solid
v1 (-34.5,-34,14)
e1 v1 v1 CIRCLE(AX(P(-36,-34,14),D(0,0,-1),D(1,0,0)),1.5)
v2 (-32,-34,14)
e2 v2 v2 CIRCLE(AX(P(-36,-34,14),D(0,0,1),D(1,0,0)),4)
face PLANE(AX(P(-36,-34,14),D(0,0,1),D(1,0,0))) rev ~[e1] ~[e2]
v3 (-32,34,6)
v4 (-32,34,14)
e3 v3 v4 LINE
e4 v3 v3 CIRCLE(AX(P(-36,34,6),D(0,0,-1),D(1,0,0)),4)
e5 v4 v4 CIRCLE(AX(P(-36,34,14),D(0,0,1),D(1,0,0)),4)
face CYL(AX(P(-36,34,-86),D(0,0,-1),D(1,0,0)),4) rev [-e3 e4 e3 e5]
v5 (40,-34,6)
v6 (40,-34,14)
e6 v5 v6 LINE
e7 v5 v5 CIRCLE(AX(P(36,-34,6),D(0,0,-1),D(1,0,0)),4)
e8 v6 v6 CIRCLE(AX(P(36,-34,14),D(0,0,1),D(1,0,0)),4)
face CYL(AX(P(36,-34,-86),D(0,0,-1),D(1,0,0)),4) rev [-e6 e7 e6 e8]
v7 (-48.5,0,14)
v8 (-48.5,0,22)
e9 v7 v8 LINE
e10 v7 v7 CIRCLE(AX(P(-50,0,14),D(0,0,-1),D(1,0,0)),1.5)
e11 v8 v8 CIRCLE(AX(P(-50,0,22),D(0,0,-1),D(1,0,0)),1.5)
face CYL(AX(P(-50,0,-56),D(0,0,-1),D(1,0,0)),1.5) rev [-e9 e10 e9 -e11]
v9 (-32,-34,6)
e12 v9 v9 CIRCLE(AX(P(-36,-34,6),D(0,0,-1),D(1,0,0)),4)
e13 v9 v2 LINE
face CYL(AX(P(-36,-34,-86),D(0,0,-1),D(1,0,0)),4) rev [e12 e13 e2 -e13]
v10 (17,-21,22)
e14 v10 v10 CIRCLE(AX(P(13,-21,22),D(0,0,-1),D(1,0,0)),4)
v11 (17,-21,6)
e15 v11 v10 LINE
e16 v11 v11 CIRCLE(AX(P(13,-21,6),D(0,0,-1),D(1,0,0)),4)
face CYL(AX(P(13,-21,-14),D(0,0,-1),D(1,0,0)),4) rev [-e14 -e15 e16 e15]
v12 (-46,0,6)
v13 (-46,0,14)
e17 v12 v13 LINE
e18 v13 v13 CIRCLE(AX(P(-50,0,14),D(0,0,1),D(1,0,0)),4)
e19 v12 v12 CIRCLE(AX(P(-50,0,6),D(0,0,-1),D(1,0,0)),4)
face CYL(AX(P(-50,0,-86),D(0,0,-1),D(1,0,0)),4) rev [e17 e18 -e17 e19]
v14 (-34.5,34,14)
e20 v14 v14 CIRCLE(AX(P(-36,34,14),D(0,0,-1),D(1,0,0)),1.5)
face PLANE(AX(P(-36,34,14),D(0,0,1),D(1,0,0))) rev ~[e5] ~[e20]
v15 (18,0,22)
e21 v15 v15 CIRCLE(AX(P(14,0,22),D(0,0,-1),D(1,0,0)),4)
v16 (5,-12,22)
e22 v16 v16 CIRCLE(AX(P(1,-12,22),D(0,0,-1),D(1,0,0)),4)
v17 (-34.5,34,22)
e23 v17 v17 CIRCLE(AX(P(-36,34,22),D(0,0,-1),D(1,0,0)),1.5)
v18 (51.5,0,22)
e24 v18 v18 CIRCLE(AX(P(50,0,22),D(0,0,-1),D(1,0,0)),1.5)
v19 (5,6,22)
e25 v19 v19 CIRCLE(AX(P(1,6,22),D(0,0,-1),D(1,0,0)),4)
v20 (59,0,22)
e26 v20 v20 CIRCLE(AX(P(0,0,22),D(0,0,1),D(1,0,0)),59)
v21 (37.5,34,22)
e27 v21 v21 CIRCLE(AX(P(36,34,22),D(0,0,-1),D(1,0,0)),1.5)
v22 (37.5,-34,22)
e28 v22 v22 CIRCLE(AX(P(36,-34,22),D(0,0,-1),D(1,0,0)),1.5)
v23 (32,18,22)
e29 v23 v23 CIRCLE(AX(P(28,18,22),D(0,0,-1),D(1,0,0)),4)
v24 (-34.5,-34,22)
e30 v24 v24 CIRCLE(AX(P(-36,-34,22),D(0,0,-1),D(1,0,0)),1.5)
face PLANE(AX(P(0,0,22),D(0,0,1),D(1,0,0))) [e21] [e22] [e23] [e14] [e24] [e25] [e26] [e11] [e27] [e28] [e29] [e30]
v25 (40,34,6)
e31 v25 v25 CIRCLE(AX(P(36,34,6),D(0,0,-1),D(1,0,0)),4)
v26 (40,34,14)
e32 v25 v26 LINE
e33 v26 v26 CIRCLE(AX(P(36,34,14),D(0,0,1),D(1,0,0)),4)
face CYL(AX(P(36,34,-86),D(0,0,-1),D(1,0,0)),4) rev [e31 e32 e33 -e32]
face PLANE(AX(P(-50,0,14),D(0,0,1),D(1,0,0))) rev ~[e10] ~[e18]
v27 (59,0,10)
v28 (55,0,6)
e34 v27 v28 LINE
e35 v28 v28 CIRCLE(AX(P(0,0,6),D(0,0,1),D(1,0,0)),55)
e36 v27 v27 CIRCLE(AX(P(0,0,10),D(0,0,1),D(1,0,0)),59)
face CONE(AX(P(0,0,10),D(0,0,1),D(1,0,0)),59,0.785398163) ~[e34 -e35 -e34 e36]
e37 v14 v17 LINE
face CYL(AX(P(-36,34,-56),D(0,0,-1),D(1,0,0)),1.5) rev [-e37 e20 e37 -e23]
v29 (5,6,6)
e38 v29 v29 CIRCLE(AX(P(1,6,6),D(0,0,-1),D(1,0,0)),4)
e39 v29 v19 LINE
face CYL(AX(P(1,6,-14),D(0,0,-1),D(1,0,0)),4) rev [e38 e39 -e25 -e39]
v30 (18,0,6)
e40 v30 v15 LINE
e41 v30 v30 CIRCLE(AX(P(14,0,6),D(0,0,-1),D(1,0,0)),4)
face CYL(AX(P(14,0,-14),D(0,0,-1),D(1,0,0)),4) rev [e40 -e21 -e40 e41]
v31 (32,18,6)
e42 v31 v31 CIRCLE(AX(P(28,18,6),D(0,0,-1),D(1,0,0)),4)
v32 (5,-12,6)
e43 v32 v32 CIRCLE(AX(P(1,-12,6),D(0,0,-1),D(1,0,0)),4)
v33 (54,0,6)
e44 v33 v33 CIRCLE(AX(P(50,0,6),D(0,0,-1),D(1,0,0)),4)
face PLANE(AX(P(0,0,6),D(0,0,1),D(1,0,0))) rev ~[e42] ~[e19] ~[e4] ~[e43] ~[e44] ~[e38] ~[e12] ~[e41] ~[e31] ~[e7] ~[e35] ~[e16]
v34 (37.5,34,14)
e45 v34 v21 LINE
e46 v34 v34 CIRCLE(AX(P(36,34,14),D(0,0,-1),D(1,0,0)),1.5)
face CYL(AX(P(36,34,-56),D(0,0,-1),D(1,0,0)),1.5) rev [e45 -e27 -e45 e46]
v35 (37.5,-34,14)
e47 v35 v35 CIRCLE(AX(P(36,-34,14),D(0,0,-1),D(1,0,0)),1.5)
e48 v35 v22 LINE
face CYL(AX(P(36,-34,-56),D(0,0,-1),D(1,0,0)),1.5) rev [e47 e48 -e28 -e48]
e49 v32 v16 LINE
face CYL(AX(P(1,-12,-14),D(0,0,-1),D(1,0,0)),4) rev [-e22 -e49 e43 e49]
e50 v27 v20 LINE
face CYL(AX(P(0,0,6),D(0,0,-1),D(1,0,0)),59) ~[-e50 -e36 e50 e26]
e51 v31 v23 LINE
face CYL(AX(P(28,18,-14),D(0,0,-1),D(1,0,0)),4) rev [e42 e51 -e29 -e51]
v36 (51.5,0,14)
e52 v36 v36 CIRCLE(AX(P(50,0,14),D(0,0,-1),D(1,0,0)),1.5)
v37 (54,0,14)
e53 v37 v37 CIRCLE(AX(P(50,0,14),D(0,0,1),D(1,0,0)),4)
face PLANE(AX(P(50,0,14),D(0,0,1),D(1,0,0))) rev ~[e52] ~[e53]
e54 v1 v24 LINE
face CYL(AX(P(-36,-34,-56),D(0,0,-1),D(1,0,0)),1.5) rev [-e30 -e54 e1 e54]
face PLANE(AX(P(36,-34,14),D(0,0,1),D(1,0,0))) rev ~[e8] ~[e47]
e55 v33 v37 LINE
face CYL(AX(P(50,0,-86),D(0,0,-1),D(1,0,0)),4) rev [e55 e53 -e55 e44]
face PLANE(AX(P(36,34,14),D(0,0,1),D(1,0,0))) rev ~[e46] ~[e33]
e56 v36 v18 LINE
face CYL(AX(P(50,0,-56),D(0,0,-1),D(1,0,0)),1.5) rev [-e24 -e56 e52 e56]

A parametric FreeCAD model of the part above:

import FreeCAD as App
import Part
import Sketcher

V = App.Vector
Q = App.Units.Quantity


def edges_at(feature, points):
    """Names of the edges that pass closest to the given points."""
    edges = feature.Shape.Edges
    near = lambda p: min(range(len(edges)), key=lambda i: edges[i].distToShape(Part.Vertex(*p))[0])
    return sorted({f"Edge{near(p) + 1}" for p in points})

doc = App.newDocument("Part")
body = doc.addObject("PartDesign::Body", "Body")

# Sketch on XY plane
sketch1 = doc.addObject("Sketcher::SketchObject", "Sketch")
body.addObject(sketch1)
sketch1.AttachmentSupport = (doc.XY_Plane, [""])
sketch1.MapMode = "FlatFace"
sketch1.AttachmentOffset = App.Placement(V(0, 0, -18), App.Rotation())
sketch1.addGeometry(Part.Circle(V(14, 0, 0), V(0, 0, 1), 4), False)
sketch1.addConstraint(Sketcher.Constraint("PointOnObject", 0, 3, -1))
sketch1.addConstraint(Sketcher.Constraint("Diameter", 0, Q("8 mm")))
sketch1.addConstraint(Sketcher.Constraint("DistanceX", -1, 1, 0, 3, Q("14 mm")))
pad1 = doc.addObject("PartDesign::Pad", "Pad")
body.addObject(pad1)
pad1.Profile = sketch1
pad1.Length = 100
body2 = doc.addObject("PartDesign::Body", "Body001")
body2.AllowCompound = True

# Sketch on XY plane
sketch2 = doc.addObject("Sketcher::SketchObject", "Sketch001")
body2.addObject(sketch2)
sketch2.AttachmentSupport = (doc.getObject("XY_Plane001"), [""])
sketch2.MapMode = "FlatFace"
sketch2.AttachmentOffset = App.Placement(V(0, 0, -18), App.Rotation())
sketch2.addGeometry(Part.Circle(V(90, 0, 0), V(0, 0, 1), 4), False)
sketch2.addConstraint(Sketcher.Constraint("PointOnObject", 0, 3, -1))
sketch2.addConstraint(Sketcher.Constraint("Diameter", 0, Q("8 mm")))
sketch2.addConstraint(Sketcher.Constraint("DistanceX", -1, 1, 0, 3, Q("90 mm")))
pad2 = doc.addObject("PartDesign::Pad", "Pad001")
body2.addObject(pad2)
pad2.Profile = sketch2
pad2.Length = 100
doc.recompute()

boolean = doc.addObject("PartDesign::Boolean", "Boolean")
body2.addObject(boolean)
boolean.Type = "Fuse"
boolean.addObjects([body])
body3 = doc.addObject("PartDesign::Body", "Body002")

# Sketch on XY plane
sketch3 = doc.addObject("Sketcher::SketchObject", "Sketch002")
body3.addObject(sketch3)
sketch3.AttachmentSupport = (doc.getObject("XY_Plane002"), [""])
sketch3.MapMode = "FlatFace"
sketch3.AttachmentOffset = App.Placement(V(0, 0, -60), App.Rotation())
sketch3.addGeometry(Part.Circle(V(-36, 34, 0), V(0, 0, 1), 1.5), False)
sketch3.addConstraint(Sketcher.Constraint("Diameter", 0, Q("3 mm")))
sketch3.addConstraint(Sketcher.Constraint("DistanceX", 0, 3, -1, 1, Q("36 mm")))
sketch3.addConstraint(Sketcher.Constraint("DistanceY", -1, 1, 0, 3, Q("34 mm")))
pad3 = doc.addObject("PartDesign::Pad", "Pad002")
body3.addObject(pad3)
pad3.Profile = sketch3
pad3.Length = 100
body4 = doc.addObject("PartDesign::Body", "Body003")

# Sketch on XY plane
sketch4 = doc.addObject("Sketcher::SketchObject", "Sketch003")
body4.addObject(sketch4)
sketch4.AttachmentSupport = (doc.getObject("XY_Plane003"), [""])
sketch4.MapMode = "FlatFace"
sketch4.AttachmentOffset = App.Placement(V(0, 0, -60), App.Rotation())
sketch4.addGeometry(Part.Circle(V(-36, -34, 0), V(0, 0, 1), 1.5), False)
sketch4.addConstraint(Sketcher.Constraint("Diameter", 0, Q("3 mm")))
sketch4.addConstraint(Sketcher.Constraint("DistanceX", 0, 3, -1, 1, Q("36 mm")))
sketch4.addConstraint(Sketcher.Constraint("DistanceY", 0, 3, -1, 1, Q("34 mm")))
pad4 = doc.addObject("PartDesign::Pad", "Pad003")
body4.addObject(pad4)
pad4.Profile = sketch4
pad4.Length = 100
body5 = doc.addObject("PartDesign::Body", "Body004")

# Sketch on XY plane
sketch5 = doc.addObject("Sketcher::SketchObject", "Sketch004")
body5.addObject(sketch5)
sketch5.AttachmentSupport = (doc.getObject("XY_Plane004"), [""])
sketch5.MapMode = "FlatFace"
sketch5.AttachmentOffset = App.Placement(V(0, 0, -60), App.Rotation())
sketch5.addGeometry(Part.Circle(V(50, 0, 0), V(0, 0, 1), 1.5), False)
sketch5.addConstraint(Sketcher.Constraint("PointOnObject", 0, 3, -1))
sketch5.addConstraint(Sketcher.Constraint("Diameter", 0, Q("3 mm")))
sketch5.addConstraint(Sketcher.Constraint("DistanceX", -1, 1, 0, 3, Q("50 mm")))
pad5 = doc.addObject("PartDesign::Pad", "Pad004")
body5.addObject(pad5)
pad5.Profile = sketch5
pad5.Length = 100
body6 = doc.addObject("PartDesign::Body", "Body005")

# Sketch on XY plane
sketch6 = doc.addObject("Sketcher::SketchObject", "Sketch005")
body6.addObject(sketch6)
sketch6.AttachmentSupport = (doc.getObject("XY_Plane005"), [""])
sketch6.MapMode = "FlatFace"
sketch6.AttachmentOffset = App.Placement(V(0, 0, -60), App.Rotation())
sketch6.addGeometry(Part.Circle(V(36, 34, 0), V(0, 0, 1), 1.5), False)
sketch6.addConstraint(Sketcher.Constraint("Diameter", 0, Q("3 mm")))
sketch6.addConstraint(Sketcher.Constraint("DistanceX", -1, 1, 0, 3, Q("36 mm")))
sketch6.addConstraint(Sketcher.Constraint("DistanceY", -1, 1, 0, 3, Q("34 mm")))
pad6 = doc.addObject("PartDesign::Pad", "Pad005")
body6.addObject(pad6)
pad6.Profile = sketch6
pad6.Length = 100
body7 = doc.addObject("PartDesign::Body", "Body006")

# Sketch on XY plane
sketch7 = doc.addObject("Sketcher::SketchObject", "Sketch006")
body7.addObject(sketch7)
sketch7.AttachmentSupport = (doc.getObject("XY_Plane006"), [""])
sketch7.MapMode = "FlatFace"
sketch7.AttachmentOffset = App.Placement(V(0, 0, -60), App.Rotation())
sketch7.addGeometry(Part.Circle(V(36, -34, 0), V(0, 0, 1), 1.5), False)
sketch7.addConstraint(Sketcher.Constraint("Diameter", 0, Q("3 mm")))
sketch7.addConstraint(Sketcher.Constraint("DistanceX", -1, 1, 0, 3, Q("36 mm")))
sketch7.addConstraint(Sketcher.Constraint("DistanceY", 0, 3, -1, 1, Q("34 mm")))
pad7 = doc.addObject("PartDesign::Pad", "Pad006")
body7.addObject(pad7)
pad7.Profile = sketch7
pad7.Length = 100
body8 = doc.addObject("PartDesign::Body", "Body007")
body8.AllowCompound = True

# Sketch on XY plane
sketch8 = doc.addObject("Sketcher::SketchObject", "Sketch007")
body8.addObject(sketch8)
sketch8.AttachmentSupport = (doc.getObject("XY_Plane007"), [""])
sketch8.MapMode = "FlatFace"
sketch8.AttachmentOffset = App.Placement(V(0, 0, -60), App.Rotation())
sketch8.addGeometry(Part.Circle(V(-50, 0, 0), V(0, 0, 1), 1.5), False)
sketch8.addConstraint(Sketcher.Constraint("PointOnObject", 0, 3, -1))
sketch8.addConstraint(Sketcher.Constraint("Diameter", 0, Q("3 mm")))
sketch8.addConstraint(Sketcher.Constraint("DistanceX", 0, 3, -1, 1, Q("50 mm")))
pad8 = doc.addObject("PartDesign::Pad", "Pad007")
body8.addObject(pad8)
pad8.Profile = sketch8
pad8.Length = 100
doc.recompute()

boolean2 = doc.addObject("PartDesign::Boolean", "Boolean001")
body8.addObject(boolean2)
boolean2.Type = "Fuse"
boolean2.addObjects([body3])
doc.recompute()

boolean3 = doc.addObject("PartDesign::Boolean", "Boolean002")
body8.addObject(boolean3)
boolean3.Type = "Fuse"
boolean3.addObjects([body4])
doc.recompute()

boolean4 = doc.addObject("PartDesign::Boolean", "Boolean003")
body8.addObject(boolean4)
boolean4.Type = "Fuse"
boolean4.addObjects([body5])
doc.recompute()

boolean5 = doc.addObject("PartDesign::Boolean", "Boolean004")
body8.addObject(boolean5)
boolean5.Type = "Fuse"
boolean5.addObjects([body6])
doc.recompute()

boolean6 = doc.addObject("PartDesign::Boolean", "Boolean005")
body8.addObject(boolean6)
boolean6.Type = "Fuse"
boolean6.addObjects([body7])
body9 = doc.addObject("PartDesign::Body", "Body008")

# Sketch on XY plane
sketch9 = doc.addObject("Sketcher::SketchObject", "Sketch008")
body9.addObject(sketch9)
sketch9.AttachmentSupport = (doc.getObject("XY_Plane008"), [""])
sketch9.MapMode = "FlatFace"
sketch9.AttachmentOffset = App.Placement(V(0, 0, -90), App.Rotation())
sketch9.addGeometry(Part.Circle(V(-36, 34, 0), V(0, 0, 1), 4), False)
sketch9.addConstraint(Sketcher.Constraint("Diameter", 0, Q("8 mm")))
sketch9.addConstraint(Sketcher.Constraint("DistanceX", 0, 3, -1, 1, Q("36 mm")))
sketch9.addConstraint(Sketcher.Constraint("DistanceY", -1, 1, 0, 3, Q("34 mm")))
pad9 = doc.addObject("PartDesign::Pad", "Pad008")
body9.addObject(pad9)
pad9.Profile = sketch9
pad9.Length = 100
body10 = doc.addObject("PartDesign::Body", "Body009")

# Sketch on XY plane
sketch10 = doc.addObject("Sketcher::SketchObject", "Sketch009")
body10.addObject(sketch10)
sketch10.AttachmentSupport = (doc.getObject("XY_Plane009"), [""])
sketch10.MapMode = "FlatFace"
sketch10.AttachmentOffset = App.Placement(V(0, 0, -90), App.Rotation())
sketch10.addGeometry(Part.Circle(V(-36, -34, 0), V(0, 0, 1), 4), False)
sketch10.addConstraint(Sketcher.Constraint("Diameter", 0, Q("8 mm")))
sketch10.addConstraint(Sketcher.Constraint("DistanceX", 0, 3, -1, 1, Q("36 mm")))
sketch10.addConstraint(Sketcher.Constraint("DistanceY", 0, 3, -1, 1, Q("34 mm")))
pad10 = doc.addObject("PartDesign::Pad", "Pad009")
body10.addObject(pad10)
pad10.Profile = sketch10
pad10.Length = 100
body11 = doc.addObject("PartDesign::Body", "Body010")

# Sketch on XY plane
sketch11 = doc.addObject("Sketcher::SketchObject", "Sketch010")
body11.addObject(sketch11)
sketch11.AttachmentSupport = (doc.getObject("XY_Plane010"), [""])
sketch11.MapMode = "FlatFace"
sketch11.AttachmentOffset = App.Placement(V(0, 0, -90), App.Rotation())
sketch11.addGeometry(Part.Circle(V(50, 0, 0), V(0, 0, 1), 4), False)
sketch11.addConstraint(Sketcher.Constraint("PointOnObject", 0, 3, -1))
sketch11.addConstraint(Sketcher.Constraint("Diameter", 0, Q("8 mm")))
sketch11.addConstraint(Sketcher.Constraint("DistanceX", -1, 1, 0, 3, Q("50 mm")))
pad11 = doc.addObject("PartDesign::Pad", "Pad010")
body11.addObject(pad11)
pad11.Profile = sketch11
pad11.Length = 100
body12 = doc.addObject("PartDesign::Body", "Body011")

# Sketch on XY plane
sketch12 = doc.addObject("Sketcher::SketchObject", "Sketch011")
body12.addObject(sketch12)
sketch12.AttachmentSupport = (doc.getObject("XY_Plane011"), [""])
sketch12.MapMode = "FlatFace"
sketch12.AttachmentOffset = App.Placement(V(0, 0, -90), App.Rotation())
sketch12.addGeometry(Part.Circle(V(36, 34, 0), V(0, 0, 1), 4), False)
sketch12.addConstraint(Sketcher.Constraint("Diameter", 0, Q("8 mm")))
sketch12.addConstraint(Sketcher.Constraint("DistanceX", -1, 1, 0, 3, Q("36 mm")))
sketch12.addConstraint(Sketcher.Constraint("DistanceY", -1, 1, 0, 3, Q("34 mm")))
pad12 = doc.addObject("PartDesign::Pad", "Pad011")
body12.addObject(pad12)
pad12.Profile = sketch12
pad12.Length = 100
body13 = doc.addObject("PartDesign::Body", "Body012")

# Sketch on XY plane
sketch13 = doc.addObject("Sketcher::SketchObject", "Sketch012")
body13.addObject(sketch13)
sketch13.AttachmentSupport = (doc.getObject("XY_Plane012"), [""])
sketch13.MapMode = "FlatFace"
sketch13.AttachmentOffset = App.Placement(V(0, 0, -90), App.Rotation())
sketch13.addGeometry(Part.Circle(V(36, -34, 0), V(0, 0, 1), 4), False)
sketch13.addConstraint(Sketcher.Constraint("Diameter", 0, Q("8 mm")))
sketch13.addConstraint(Sketcher.Constraint("DistanceX", -1, 1, 0, 3, Q("36 mm")))
sketch13.addConstraint(Sketcher.Constraint("DistanceY", 0, 3, -1, 1, Q("34 mm")))
pad13 = doc.addObject("PartDesign::Pad", "Pad012")
body13.addObject(pad13)
pad13.Profile = sketch13
pad13.Length = 100
body14 = doc.addObject("PartDesign::Body", "Body013")
body14.AllowCompound = True

# Sketch on XY plane
sketch14 = doc.addObject("Sketcher::SketchObject", "Sketch013")
body14.addObject(sketch14)
sketch14.AttachmentSupport = (doc.getObject("XY_Plane013"), [""])
sketch14.MapMode = "FlatFace"
sketch14.AttachmentOffset = App.Placement(V(0, 0, -90), App.Rotation())
sketch14.addGeometry(Part.Circle(V(-50, 0, 0), V(0, 0, 1), 4), False)
sketch14.addConstraint(Sketcher.Constraint("PointOnObject", 0, 3, -1))
sketch14.addConstraint(Sketcher.Constraint("Diameter", 0, Q("8 mm")))
sketch14.addConstraint(Sketcher.Constraint("DistanceX", 0, 3, -1, 1, Q("50 mm")))
pad14 = doc.addObject("PartDesign::Pad", "Pad013")
body14.addObject(pad14)
pad14.Profile = sketch14
pad14.Length = 100
doc.recompute()

boolean7 = doc.addObject("PartDesign::Boolean", "Boolean006")
body14.addObject(boolean7)
boolean7.Type = "Fuse"
boolean7.addObjects([body9])
doc.recompute()

boolean8 = doc.addObject("PartDesign::Boolean", "Boolean007")
body14.addObject(boolean8)
boolean8.Type = "Fuse"
boolean8.addObjects([body10])
doc.recompute()

boolean9 = doc.addObject("PartDesign::Boolean", "Boolean008")
body14.addObject(boolean9)
boolean9.Type = "Fuse"
boolean9.addObjects([body11])
doc.recompute()

boolean10 = doc.addObject("PartDesign::Boolean", "Boolean009")
body14.addObject(boolean10)
boolean10.Type = "Fuse"
boolean10.addObjects([body12])
doc.recompute()

boolean11 = doc.addObject("PartDesign::Boolean", "Boolean010")
body14.addObject(boolean11)
boolean11.Type = "Fuse"
boolean11.addObjects([body13])
body15 = doc.addObject("PartDesign::Body", "Body014")

# Sketch on XY plane
sketch15 = doc.addObject("Sketcher::SketchObject", "Sketch014")
body15.addObject(sketch15)
sketch15.AttachmentSupport = (doc.getObject("XY_Plane014"), [""])
sketch15.MapMode = "FlatFace"
sketch15.AttachmentOffset = App.Placement(V(0, 0, -20), App.Rotation())
sketch15.addGeometry(Part.Circle(V(103, 6, 0), V(0, 0, 1), 4), False)
sketch15.addConstraint(Sketcher.Constraint("Diameter", 0, Q("8 mm")))
sketch15.addConstraint(Sketcher.Constraint("DistanceX", -1, 1, 0, 3, Q("103 mm")))
sketch15.addConstraint(Sketcher.Constraint("DistanceY", -1, 1, 0, 3, Q("6 mm")))
pad15 = doc.addObject("PartDesign::Pad", "Pad014")
body15.addObject(pad15)
pad15.Profile = sketch15
pad15.Length = 20
body16 = doc.addObject("PartDesign::Body", "Body015")

# Sketch on XY plane
sketch16 = doc.addObject("Sketcher::SketchObject", "Sketch015")
body16.addObject(sketch16)
sketch16.AttachmentSupport = (doc.getObject("XY_Plane015"), [""])
sketch16.MapMode = "FlatFace"
sketch16.AttachmentOffset = App.Placement(V(0, 0, -18), App.Rotation())
sketch16.addGeometry(Part.Circle(V(76, 18, 0), V(0, 0, 1), 4), False)
sketch16.addConstraint(Sketcher.Constraint("Diameter", 0, Q("8 mm")))
sketch16.addConstraint(Sketcher.Constraint("DistanceX", -1, 1, 0, 3, Q("76 mm")))
sketch16.addConstraint(Sketcher.Constraint("DistanceY", -1, 1, 0, 3, Q("18 mm")))
pad16 = doc.addObject("PartDesign::Pad", "Pad015")
body16.addObject(pad16)
pad16.Profile = sketch16
pad16.Length = 20
body17 = doc.addObject("PartDesign::Body", "Body016")

# Sketch on XY plane
sketch17 = doc.addObject("Sketcher::SketchObject", "Sketch016")
body17.addObject(sketch17)
sketch17.AttachmentSupport = (doc.getObject("XY_Plane016"), [""])
sketch17.MapMode = "FlatFace"
sketch17.AttachmentOffset = App.Placement(V(0, 0, -18), App.Rotation())
sketch17.addGeometry(Part.Circle(V(91, -21, 0), V(0, 0, 1), 4), False)
sketch17.addConstraint(Sketcher.Constraint("Diameter", 0, Q("8 mm")))
sketch17.addConstraint(Sketcher.Constraint("DistanceX", -1, 1, 0, 3, Q("91 mm")))
sketch17.addConstraint(Sketcher.Constraint("DistanceY", 0, 3, -1, 1, Q("21 mm")))
pad17 = doc.addObject("PartDesign::Pad", "Pad016")
body17.addObject(pad17)
pad17.Profile = sketch17
pad17.Length = 20
body18 = doc.addObject("PartDesign::Body", "Body017")

# Sketch on XY plane
sketch18 = doc.addObject("Sketcher::SketchObject", "Sketch017")
body18.addObject(sketch18)
sketch18.AttachmentSupport = (doc.getObject("XY_Plane017"), [""])
sketch18.MapMode = "FlatFace"
sketch18.AttachmentOffset = App.Placement(V(0, 0, -18), App.Rotation())
sketch18.addGeometry(Part.Circle(V(13, -21, 0), V(0, 0, 1), 4), False)
sketch18.addConstraint(Sketcher.Constraint("Diameter", 0, Q("8 mm")))
sketch18.addConstraint(Sketcher.Constraint("DistanceX", -1, 1, 0, 3, Q("13 mm")))
sketch18.addConstraint(Sketcher.Constraint("DistanceY", 0, 3, -1, 1, Q("21 mm")))
pad18 = doc.addObject("PartDesign::Pad", "Pad017")
body18.addObject(pad18)
pad18.Profile = sketch18
pad18.Length = 40
body19 = doc.addObject("PartDesign::Body", "Body018")

# Sketch on XY plane
sketch19 = doc.addObject("Sketcher::SketchObject", "Sketch018")
body19.addObject(sketch19)
sketch19.AttachmentSupport = (doc.getObject("XY_Plane018"), [""])
sketch19.MapMode = "FlatFace"
sketch19.AttachmentOffset = App.Placement(V(0, 0, -18), App.Rotation())
sketch19.addGeometry(Part.Circle(V(28, 18, 0), V(0, 0, 1), 4), False)
sketch19.addConstraint(Sketcher.Constraint("Diameter", 0, Q("8 mm")))
sketch19.addConstraint(Sketcher.Constraint("DistanceX", -1, 1, 0, 3, Q("28 mm")))
sketch19.addConstraint(Sketcher.Constraint("DistanceY", -1, 1, 0, 3, Q("18 mm")))
pad19 = doc.addObject("PartDesign::Pad", "Pad018")
body19.addObject(pad19)
pad19.Profile = sketch19
pad19.Length = 40
body20 = doc.addObject("PartDesign::Body", "Body019")

# Sketch on XY plane
sketch20 = doc.addObject("Sketcher::SketchObject", "Sketch019")
body20.addObject(sketch20)
sketch20.AttachmentSupport = (doc.getObject("XY_Plane019"), [""])
sketch20.MapMode = "FlatFace"
sketch20.AttachmentOffset = App.Placement(V(0, 0, -18), App.Rotation())
sketch20.addGeometry(Part.Circle(V(1, -12, 0), V(0, 0, 1), 4), False)
sketch20.addConstraint(Sketcher.Constraint("Diameter", 0, Q("8 mm")))
sketch20.addConstraint(Sketcher.Constraint("DistanceX", -1, 1, 0, 3, Q("1 mm")))
sketch20.addConstraint(Sketcher.Constraint("DistanceY", 0, 3, -1, 1, Q("12 mm")))
pad20 = doc.addObject("PartDesign::Pad", "Pad019")
body20.addObject(pad20)
pad20.Profile = sketch20
pad20.Length = 40
body21 = doc.addObject("PartDesign::Body", "Body020")

# Sketch on XY plane
sketch21 = doc.addObject("Sketcher::SketchObject", "Sketch020")
body21.addObject(sketch21)
sketch21.AttachmentSupport = (doc.getObject("XY_Plane020"), [""])
sketch21.MapMode = "FlatFace"
sketch21.AttachmentOffset = App.Placement(V(0, 0, -18), App.Rotation())
sketch21.addGeometry(Part.Circle(V(1, 6, 0), V(0, 0, 1), 4), False)
sketch21.addConstraint(Sketcher.Constraint("Diameter", 0, Q("8 mm")))
sketch21.addConstraint(Sketcher.Constraint("DistanceX", -1, 1, 0, 3, Q("1 mm")))
sketch21.addConstraint(Sketcher.Constraint("DistanceY", -1, 1, 0, 3, Q("6 mm")))
pad21 = doc.addObject("PartDesign::Pad", "Pad020")
body21.addObject(pad21)
pad21.Profile = sketch21
pad21.Length = 40
body22 = doc.addObject("PartDesign::Body", "Body021")
body22.AllowCompound = True

# Sketch on XY plane
sketch22 = doc.addObject("Sketcher::SketchObject", "Sketch021")
body22.addObject(sketch22)
sketch22.AttachmentSupport = (doc.getObject("XY_Plane021"), [""])
sketch22.MapMode = "FlatFace"
sketch22.AttachmentOffset = App.Placement(V(0, 0, -20), App.Rotation())
sketch22.addGeometry(Part.Circle(V(103, -12, 0), V(0, 0, 1), 4), False)
sketch22.addConstraint(Sketcher.Constraint("Diameter", 0, Q("8 mm")))
sketch22.addConstraint(Sketcher.Constraint("DistanceX", -1, 1, 0, 3, Q("103 mm")))
sketch22.addConstraint(Sketcher.Constraint("DistanceY", 0, 3, -1, 1, Q("12 mm")))
pad22 = doc.addObject("PartDesign::Pad", "Pad021")
body22.addObject(pad22)
pad22.Profile = sketch22
pad22.Length = 20
doc.recompute()

boolean12 = doc.addObject("PartDesign::Boolean", "Boolean011")
body22.addObject(boolean12)
boolean12.Type = "Fuse"
boolean12.addObjects([body15])
doc.recompute()

boolean13 = doc.addObject("PartDesign::Boolean", "Boolean012")
body22.addObject(boolean13)
boolean13.Type = "Fuse"
boolean13.addObjects([body16])
doc.recompute()

boolean14 = doc.addObject("PartDesign::Boolean", "Boolean013")
body22.addObject(boolean14)
boolean14.Type = "Fuse"
boolean14.addObjects([body17])
doc.recompute()

boolean15 = doc.addObject("PartDesign::Boolean", "Boolean014")
body22.addObject(boolean15)
boolean15.Type = "Fuse"
boolean15.addObjects([body18])
doc.recompute()

boolean16 = doc.addObject("PartDesign::Boolean", "Boolean015")
body22.addObject(boolean16)
boolean16.Type = "Fuse"
boolean16.addObjects([body19])
doc.recompute()

boolean17 = doc.addObject("PartDesign::Boolean", "Boolean016")
body22.addObject(boolean17)
boolean17.Type = "Fuse"
boolean17.addObjects([body20])
doc.recompute()

boolean18 = doc.addObject("PartDesign::Boolean", "Boolean017")
body22.addObject(boolean18)
boolean18.Type = "Fuse"
boolean18.addObjects([body21])
body23 = doc.addObject("PartDesign::Body", "Body022")

# Sketch on XY plane
sketch23 = doc.addObject("Sketcher::SketchObject", "Sketch022")
body23.addObject(sketch23)
sketch23.AttachmentSupport = (doc.getObject("XY_Plane022"), [""])
sketch23.MapMode = "FlatFace"
sketch23.AttachmentOffset = App.Placement(V(0, 0, 2), App.Rotation())
sketch23.addGeometry(Part.Circle(V(0, 0, 0), V(0, 0, 1), 59), False)
sketch23.addConstraint(Sketcher.Constraint("Coincident", 0, 3, -1, 1))
sketch23.addConstraint(Sketcher.Constraint("Diameter", 0, Q("118 mm")))
pad23 = doc.addObject("PartDesign::Pad", "Pad022")
body23.addObject(pad23)
pad23.Profile = sketch23
pad23.Length = 16
doc.recompute()

boolean19 = doc.addObject("PartDesign::Boolean", "Boolean018")
body23.addObject(boolean19)
boolean19.Type = "Cut"
boolean19.addObjects([body22])
doc.recompute()

boolean20 = doc.addObject("PartDesign::Boolean", "Boolean019")
body23.addObject(boolean20)
boolean20.Type = "Cut"
boolean20.addObjects([body14])
doc.recompute()

boolean21 = doc.addObject("PartDesign::Boolean", "Boolean020")
body23.addObject(boolean21)
boolean21.Type = "Cut"
boolean21.addObjects([body8])
doc.recompute()

chamfer = doc.addObject("PartDesign::Chamfer", "Chamfer")
body23.addObject(chamfer)
chamfer.Base = (boolean21, edges_at(boolean21, [(-59, 0, 2)]))
chamfer.Size = 4
doc.recompute()

boolean22 = doc.addObject("PartDesign::Boolean", "Boolean021")
body23.addObject(boolean22)
boolean22.Type = "Cut"
boolean22.addObjects([body2])
body24 = doc.addObject("PartDesign::Body", "Body023")
doc.recompute()

body23.Placement = App.Placement(V(0, 0, 4), App.Rotation(V(0, 0, 1), 0))
boolean23 = doc.addObject("PartDesign::Boolean", "Boolean022")
body24.addObject(boolean23)
boolean23.Type = "Fuse"
boolean23.addObjects([body23])

doc.recompute()
